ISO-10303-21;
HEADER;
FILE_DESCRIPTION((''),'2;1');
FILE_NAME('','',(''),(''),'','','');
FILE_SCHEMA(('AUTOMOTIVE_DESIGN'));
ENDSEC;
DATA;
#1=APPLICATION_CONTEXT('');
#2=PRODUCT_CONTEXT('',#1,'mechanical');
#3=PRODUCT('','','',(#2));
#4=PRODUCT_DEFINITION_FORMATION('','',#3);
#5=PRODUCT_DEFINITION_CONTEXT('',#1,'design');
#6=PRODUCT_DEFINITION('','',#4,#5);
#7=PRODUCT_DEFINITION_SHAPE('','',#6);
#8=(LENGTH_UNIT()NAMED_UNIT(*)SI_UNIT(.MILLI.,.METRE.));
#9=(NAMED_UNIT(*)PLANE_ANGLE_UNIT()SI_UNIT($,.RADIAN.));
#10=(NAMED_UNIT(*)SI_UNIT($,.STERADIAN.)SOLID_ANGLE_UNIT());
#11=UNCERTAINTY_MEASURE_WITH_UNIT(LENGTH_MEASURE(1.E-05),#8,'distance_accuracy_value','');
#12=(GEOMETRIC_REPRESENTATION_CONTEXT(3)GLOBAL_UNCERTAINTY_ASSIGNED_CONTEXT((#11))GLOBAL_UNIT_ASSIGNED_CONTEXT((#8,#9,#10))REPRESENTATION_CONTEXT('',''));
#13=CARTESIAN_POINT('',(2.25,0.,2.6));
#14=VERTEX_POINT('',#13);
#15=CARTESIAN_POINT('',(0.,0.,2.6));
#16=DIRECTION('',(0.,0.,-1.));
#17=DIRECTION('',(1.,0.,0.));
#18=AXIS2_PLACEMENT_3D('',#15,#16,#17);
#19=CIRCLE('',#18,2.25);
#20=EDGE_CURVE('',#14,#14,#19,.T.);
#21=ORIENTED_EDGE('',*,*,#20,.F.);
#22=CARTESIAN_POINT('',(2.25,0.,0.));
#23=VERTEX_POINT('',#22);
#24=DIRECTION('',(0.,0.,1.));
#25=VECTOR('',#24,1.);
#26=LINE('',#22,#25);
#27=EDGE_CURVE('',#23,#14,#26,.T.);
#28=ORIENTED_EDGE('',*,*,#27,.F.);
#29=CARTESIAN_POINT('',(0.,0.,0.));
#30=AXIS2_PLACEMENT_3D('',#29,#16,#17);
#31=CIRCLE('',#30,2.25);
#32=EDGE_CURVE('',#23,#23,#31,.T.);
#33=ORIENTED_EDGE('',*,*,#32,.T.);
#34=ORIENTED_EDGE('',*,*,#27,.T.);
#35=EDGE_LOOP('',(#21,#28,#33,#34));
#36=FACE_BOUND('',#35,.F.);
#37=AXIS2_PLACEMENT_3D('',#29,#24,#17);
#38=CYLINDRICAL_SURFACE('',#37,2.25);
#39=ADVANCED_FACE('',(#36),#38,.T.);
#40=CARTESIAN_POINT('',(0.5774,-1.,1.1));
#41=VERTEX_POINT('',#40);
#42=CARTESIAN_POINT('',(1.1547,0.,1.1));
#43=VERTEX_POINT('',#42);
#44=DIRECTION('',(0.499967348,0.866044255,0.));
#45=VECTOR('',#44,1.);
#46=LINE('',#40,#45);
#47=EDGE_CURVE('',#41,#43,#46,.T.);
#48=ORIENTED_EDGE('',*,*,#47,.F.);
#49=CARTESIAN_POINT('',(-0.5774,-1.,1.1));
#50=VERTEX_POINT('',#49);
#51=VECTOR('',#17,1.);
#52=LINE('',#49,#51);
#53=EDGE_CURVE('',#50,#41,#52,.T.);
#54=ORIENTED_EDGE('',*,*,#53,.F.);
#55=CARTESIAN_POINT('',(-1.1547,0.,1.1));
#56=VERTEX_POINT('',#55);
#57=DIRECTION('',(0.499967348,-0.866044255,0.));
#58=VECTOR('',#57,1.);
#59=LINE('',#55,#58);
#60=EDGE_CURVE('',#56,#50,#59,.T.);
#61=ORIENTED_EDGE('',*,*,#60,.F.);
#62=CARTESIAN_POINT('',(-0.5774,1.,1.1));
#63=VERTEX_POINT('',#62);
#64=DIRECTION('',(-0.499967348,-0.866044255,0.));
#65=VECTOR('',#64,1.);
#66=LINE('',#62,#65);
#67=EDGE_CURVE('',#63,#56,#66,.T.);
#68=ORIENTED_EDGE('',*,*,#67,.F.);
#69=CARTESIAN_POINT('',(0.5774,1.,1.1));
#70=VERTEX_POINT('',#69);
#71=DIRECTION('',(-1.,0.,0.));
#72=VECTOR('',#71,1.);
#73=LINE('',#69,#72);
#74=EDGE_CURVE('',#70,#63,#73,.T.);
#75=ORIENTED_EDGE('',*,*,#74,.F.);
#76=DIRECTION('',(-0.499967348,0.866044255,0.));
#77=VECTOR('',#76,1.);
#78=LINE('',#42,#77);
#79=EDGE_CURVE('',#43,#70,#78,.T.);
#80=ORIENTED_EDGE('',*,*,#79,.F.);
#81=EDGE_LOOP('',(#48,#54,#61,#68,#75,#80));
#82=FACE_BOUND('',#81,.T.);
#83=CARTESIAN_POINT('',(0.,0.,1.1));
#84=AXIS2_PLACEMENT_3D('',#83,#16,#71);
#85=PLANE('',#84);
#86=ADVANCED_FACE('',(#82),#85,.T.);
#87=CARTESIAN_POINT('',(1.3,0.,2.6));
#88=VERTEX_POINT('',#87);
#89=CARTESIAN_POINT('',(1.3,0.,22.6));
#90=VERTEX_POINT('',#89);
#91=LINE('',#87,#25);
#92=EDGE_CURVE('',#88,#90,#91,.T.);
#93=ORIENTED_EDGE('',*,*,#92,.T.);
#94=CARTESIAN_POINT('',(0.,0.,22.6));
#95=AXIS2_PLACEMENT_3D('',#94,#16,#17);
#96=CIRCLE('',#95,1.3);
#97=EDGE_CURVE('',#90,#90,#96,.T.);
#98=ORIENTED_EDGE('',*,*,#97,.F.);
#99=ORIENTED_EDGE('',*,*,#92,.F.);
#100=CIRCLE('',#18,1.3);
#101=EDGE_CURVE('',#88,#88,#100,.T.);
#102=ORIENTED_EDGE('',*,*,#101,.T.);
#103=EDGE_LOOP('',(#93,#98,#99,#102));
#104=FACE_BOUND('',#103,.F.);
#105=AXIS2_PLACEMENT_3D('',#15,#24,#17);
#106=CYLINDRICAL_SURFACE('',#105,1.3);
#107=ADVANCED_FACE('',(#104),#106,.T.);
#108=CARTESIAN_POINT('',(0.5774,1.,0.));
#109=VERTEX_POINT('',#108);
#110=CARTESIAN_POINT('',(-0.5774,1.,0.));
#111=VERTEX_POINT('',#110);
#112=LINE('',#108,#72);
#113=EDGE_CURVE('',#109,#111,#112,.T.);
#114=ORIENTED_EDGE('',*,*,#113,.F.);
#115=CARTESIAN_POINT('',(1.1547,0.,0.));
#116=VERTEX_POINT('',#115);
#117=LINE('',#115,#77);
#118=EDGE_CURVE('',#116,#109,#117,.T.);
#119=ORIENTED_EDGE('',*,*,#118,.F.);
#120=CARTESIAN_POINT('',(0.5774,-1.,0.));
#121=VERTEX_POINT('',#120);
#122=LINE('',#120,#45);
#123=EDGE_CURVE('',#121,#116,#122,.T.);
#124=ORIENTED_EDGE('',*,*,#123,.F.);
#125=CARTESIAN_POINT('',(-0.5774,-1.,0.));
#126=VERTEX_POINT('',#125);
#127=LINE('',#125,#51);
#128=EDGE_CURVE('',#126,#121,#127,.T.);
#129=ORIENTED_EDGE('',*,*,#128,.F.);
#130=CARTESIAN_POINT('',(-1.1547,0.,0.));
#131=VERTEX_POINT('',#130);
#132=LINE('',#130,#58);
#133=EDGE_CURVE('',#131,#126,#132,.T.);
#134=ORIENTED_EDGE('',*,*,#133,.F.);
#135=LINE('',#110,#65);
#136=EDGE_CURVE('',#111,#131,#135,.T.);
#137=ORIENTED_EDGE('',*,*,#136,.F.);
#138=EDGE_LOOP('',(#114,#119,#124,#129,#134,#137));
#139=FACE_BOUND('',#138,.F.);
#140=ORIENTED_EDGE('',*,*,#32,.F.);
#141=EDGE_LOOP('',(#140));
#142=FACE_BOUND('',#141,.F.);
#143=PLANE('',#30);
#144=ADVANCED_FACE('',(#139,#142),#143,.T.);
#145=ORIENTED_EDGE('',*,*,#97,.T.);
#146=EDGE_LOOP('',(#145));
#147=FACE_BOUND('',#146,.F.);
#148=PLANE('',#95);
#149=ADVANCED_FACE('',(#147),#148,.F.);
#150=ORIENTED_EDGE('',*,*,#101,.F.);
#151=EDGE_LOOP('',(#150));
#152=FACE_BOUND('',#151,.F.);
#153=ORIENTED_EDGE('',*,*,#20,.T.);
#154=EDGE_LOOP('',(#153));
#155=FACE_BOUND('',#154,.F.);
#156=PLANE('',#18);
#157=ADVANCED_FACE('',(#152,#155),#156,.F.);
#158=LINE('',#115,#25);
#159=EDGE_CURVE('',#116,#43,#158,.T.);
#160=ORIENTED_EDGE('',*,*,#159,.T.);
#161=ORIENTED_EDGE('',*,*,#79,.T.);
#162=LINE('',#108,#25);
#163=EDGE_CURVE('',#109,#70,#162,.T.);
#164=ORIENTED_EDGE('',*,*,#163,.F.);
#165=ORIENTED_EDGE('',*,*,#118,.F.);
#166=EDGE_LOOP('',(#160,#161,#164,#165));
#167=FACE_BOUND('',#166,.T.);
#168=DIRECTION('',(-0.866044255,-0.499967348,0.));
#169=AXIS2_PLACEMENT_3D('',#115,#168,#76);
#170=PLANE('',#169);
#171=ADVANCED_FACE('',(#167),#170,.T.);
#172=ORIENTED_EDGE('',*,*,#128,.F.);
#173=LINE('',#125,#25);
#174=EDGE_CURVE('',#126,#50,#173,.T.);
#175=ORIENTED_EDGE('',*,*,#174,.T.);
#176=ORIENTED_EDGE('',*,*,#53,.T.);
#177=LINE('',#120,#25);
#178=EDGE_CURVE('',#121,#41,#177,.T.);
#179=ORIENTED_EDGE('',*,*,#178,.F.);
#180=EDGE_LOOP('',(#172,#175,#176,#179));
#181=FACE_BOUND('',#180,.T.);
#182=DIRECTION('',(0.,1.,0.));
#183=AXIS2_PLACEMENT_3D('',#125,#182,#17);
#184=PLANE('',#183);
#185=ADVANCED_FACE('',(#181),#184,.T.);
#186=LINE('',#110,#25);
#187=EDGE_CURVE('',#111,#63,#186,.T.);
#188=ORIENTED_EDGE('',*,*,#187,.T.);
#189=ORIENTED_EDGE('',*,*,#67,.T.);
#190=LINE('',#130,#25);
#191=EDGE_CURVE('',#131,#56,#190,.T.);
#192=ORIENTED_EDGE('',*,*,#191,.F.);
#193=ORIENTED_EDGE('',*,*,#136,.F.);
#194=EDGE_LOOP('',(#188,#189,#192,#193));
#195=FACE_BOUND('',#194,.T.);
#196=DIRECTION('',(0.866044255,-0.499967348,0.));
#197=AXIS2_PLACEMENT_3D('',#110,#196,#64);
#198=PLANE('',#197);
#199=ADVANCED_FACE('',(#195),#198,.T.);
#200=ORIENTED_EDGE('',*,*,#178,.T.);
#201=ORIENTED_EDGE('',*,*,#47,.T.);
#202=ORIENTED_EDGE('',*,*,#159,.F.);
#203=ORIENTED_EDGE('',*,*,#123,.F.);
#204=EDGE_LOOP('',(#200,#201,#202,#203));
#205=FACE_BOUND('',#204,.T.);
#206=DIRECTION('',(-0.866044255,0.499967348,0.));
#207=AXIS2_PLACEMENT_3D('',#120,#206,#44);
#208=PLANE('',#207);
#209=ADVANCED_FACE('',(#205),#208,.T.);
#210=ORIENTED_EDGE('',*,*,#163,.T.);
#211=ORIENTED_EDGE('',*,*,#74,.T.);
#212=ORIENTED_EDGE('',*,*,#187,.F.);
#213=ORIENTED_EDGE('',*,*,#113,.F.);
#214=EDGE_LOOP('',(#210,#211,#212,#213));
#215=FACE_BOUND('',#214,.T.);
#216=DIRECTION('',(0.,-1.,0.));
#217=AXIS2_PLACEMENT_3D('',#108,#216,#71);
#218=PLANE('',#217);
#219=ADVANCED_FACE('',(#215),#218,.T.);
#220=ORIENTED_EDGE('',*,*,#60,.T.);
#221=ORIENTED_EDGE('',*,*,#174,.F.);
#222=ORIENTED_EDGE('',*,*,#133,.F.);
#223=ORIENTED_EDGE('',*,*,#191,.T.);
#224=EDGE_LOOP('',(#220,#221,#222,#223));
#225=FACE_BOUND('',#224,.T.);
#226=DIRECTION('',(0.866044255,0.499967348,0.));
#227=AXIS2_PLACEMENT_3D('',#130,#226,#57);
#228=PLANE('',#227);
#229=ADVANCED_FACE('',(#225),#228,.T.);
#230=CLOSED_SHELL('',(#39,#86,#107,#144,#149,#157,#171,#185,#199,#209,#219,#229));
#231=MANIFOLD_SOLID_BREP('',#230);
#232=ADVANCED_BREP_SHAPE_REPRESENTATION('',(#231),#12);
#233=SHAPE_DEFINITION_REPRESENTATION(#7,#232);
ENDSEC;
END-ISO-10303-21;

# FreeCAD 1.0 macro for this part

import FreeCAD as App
import Part
import Sketcher
from FreeCAD import Vector
Q = App.Units.Quantity


def add_polygon(sketch, points):
    """Adds a closed chain of lines whose ends are joined by coincident constraints."""
    first, n = sketch.GeometryCount, len(points)
    for a, b in zip(points, points[1:] + points[:1]):
        sketch.addGeometry(Part.LineSegment(App.Vector(*a, 0), App.Vector(*b, 0)), False)
    for i in range(n):
        sketch.addConstraint(Sketcher.Constraint("Coincident", first + i, 2, first + (i + 1) % n, 1))

doc = App.newDocument("Part")
body = doc.addObject("PartDesign::Body", "Body")

sketch1 = body.newObject("Sketcher::SketchObject", "Sketch")
sketch1.AttachmentSupport = (doc.getObject("XZ_Plane"), [""])
sketch1.MapMode = "FlatFace"
add_polygon(sketch1, [(2.2, 0), (0, 0), (0, 22.6), (1.3, 22.6), (1.3, 2.6), (2.2, 2.6)])
sketch1.addConstraint([
    Sketcher.Constraint("Horizontal", 0),
    Sketcher.Constraint("Vertical", 1),
    Sketcher.Constraint("Horizontal", 2),
    Sketcher.Constraint("Vertical", 3),
    Sketcher.Constraint("Horizontal", 4),
    Sketcher.Constraint("Vertical", 5),
    Sketcher.Constraint("Coincident", 0, 2, -1, 1),
    Sketcher.Constraint("DistanceY", 3, 2, 3, 1, Q("20 mm")),
    Sketcher.Constraint("DistanceY", 5, 2, 5, 1, Q("2.6 mm")),
    Sketcher.Constraint("DistanceX", 2, 1, 2, 2, Q("1.3 mm")),
    Sketcher.Constraint("DistanceX", 0, 2, 0, 1, Q("2.25 mm")),
])
revolution = body.newObject("PartDesign::Revolution", "Revolution")
revolution.Profile = sketch1
revolution.ReferenceAxis = (sketch1, ["V_Axis"])
revolution.Angle = 360

sketch2 = body.newObject("Sketcher::SketchObject", "Sketch001")
sketch2.AttachmentSupport = (doc.getObject("XY_Plane"), [""])
sketch2.MapMode = "FlatFace"
add_polygon(sketch2, [(-1.2, 0), (-0.6, 1), (0.6, 1), (1.2, 0), (0.6, -1), (-0.6, -1)])
sketch2.addConstraint([
    Sketcher.Constraint("Horizontal", 1),
    Sketcher.Constraint("Horizontal", 4),
    Sketcher.Constraint("Symmetric", 0, 2, 3, 2, -1, 1),
    Sketcher.Constraint("Symmetric", 2, 2, 5, 2, -1, 1),
    Sketcher.Constraint("PointOnObject", 2, 2, -1),
    Sketcher.Constraint("Parallel", 2, 5),
    Sketcher.Constraint("Vertical", 1, 2, 3, 2),
    Sketcher.Constraint("DistanceY", 3, 2, 1, 2, Q("2 mm")),
    Sketcher.Constraint("DistanceX", 1, 1, 1, 2, Q("1.1548 mm")),
    Sketcher.Constraint("DistanceX", 0, 2, 2, 2, Q("1.732 mm")),
])
pocket1 = body.newObject("PartDesign::Pocket", "Pocket")
pocket1.Profile = sketch2
pocket1.Length = 1.1
pocket1.Reversed = True

doc.recompute()
